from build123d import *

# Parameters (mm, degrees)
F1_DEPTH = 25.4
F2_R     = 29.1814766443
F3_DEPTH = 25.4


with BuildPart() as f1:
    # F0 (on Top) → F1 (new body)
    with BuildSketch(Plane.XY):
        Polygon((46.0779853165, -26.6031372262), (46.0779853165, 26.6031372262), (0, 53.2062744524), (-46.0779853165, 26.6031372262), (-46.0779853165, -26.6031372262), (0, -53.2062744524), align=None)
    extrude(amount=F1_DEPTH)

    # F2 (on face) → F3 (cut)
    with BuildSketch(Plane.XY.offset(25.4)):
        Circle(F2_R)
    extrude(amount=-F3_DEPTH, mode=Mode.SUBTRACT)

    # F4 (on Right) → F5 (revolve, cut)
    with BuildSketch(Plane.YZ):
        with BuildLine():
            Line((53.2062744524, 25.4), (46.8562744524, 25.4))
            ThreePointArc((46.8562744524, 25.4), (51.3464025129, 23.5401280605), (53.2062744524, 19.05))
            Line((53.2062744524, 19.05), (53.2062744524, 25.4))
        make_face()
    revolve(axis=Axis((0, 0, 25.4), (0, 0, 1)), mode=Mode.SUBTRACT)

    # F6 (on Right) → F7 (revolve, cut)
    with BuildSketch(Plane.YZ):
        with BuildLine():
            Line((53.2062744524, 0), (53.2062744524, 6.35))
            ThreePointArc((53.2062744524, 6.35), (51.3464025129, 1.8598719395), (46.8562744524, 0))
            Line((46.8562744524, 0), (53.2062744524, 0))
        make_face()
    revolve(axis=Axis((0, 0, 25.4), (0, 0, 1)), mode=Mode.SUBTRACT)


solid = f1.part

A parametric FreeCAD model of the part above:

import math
import FreeCAD as App
import Part
import Sketcher
Q = App.Units.Quantity


def add_polygon(sketch, points):
    """Adds a closed chain of lines whose ends are joined by coincident constraints."""
    first, n = sketch.GeometryCount, len(points)
    for a, b in zip(points, points[1:] + points[:1]):
        sketch.addGeometry(Part.LineSegment(App.Vector(*a, 0), App.Vector(*b, 0)), False)
    for i in range(n):
        sketch.addConstraint(Sketcher.Constraint("Coincident", first + i, 2, first + (i + 1) % n, 1))

doc = App.newDocument("Part")
body = doc.addObject("PartDesign::Body", "Body")

sketch1 = body.newObject("Sketcher::SketchObject", "Sketch")
sketch1.AttachmentSupport = (doc.getObject("XY_Plane"), [""])
sketch1.MapMode = "FlatFace"
add_polygon(sketch1, [(46.077985, -26.603137), (46.077985, 26.603137), (0, 53.206274), (-46.077985, 26.603137), (-46.077985, -26.603137), (0, -53.206274)])
sketch1.addConstraint([
    Sketcher.Constraint("Vertical", 0),
    Sketcher.Constraint("Vertical", 3),
    Sketcher.Constraint("Symmetric", 0, 2, 3, 2, -1, 1),
    Sketcher.Constraint("Symmetric", 1, 2, 4, 2, -1, 1),
    Sketcher.Constraint("PointOnObject", 1, 2, -2),
    Sketcher.Constraint("Parallel", 2, 5),
    Sketcher.Constraint("Horizontal", 0, 2, 2, 2),
    Sketcher.Constraint("Angle", 1, Q("150 deg")),
    Sketcher.Constraint("DistanceY", 0, 1, 0, 2, 53.206274),
    Sketcher.Constraint("DistanceX", 2, 2, 0, 2, 92.155971),
])
pad1 = body.newObject("PartDesign::Pad", "Pad")
pad1.Profile = sketch1
pad1.Length = Q("1 in")

sketch2 = body.newObject("Sketcher::SketchObject", "Sketch001")
sketch2.AttachmentSupport = (doc.getObject("XY_Plane"), [""])
sketch2.MapMode = "FlatFace"
sketch2.AttachmentOffset = App.Placement(App.Vector(0, 0, 1 * 25.4), App.Rotation())
sketch2.addGeometry(Part.Circle(App.Vector(0, 0, 0), App.Vector(0, 0, 1), 29.181477), False)
sketch2.addConstraint([
    Sketcher.Constraint("Coincident", 0, 3, -1, 1),
    Sketcher.Constraint("Diameter", 0, 58.362953),
])
pocket1 = body.newObject("PartDesign::Pocket", "Pocket")
pocket1.Profile = sketch2
pocket1.Length = Q("1 in")

sketch3 = body.newObject("Sketcher::SketchObject", "Sketch002")
sketch3.AttachmentSupport = (doc.getObject("YZ_Plane"), [""])
sketch3.MapMode = "FlatFace"
sketch3.addGeometry([
    Part.LineSegment(App.Vector(53.206274, 25.4, 0), App.Vector(46.856274, 25.4, 0)),
    Part.ArcOfCircle(Part.Circle(App.Vector(46.856274, 19.05, 0), App.Vector(0, 0, 1), 6.35), math.radians(0), math.radians(90)),
    Part.LineSegment(App.Vector(53.206274, 19.05, 0), App.Vector(53.206274, 25.4, 0)),
], False)
sketch3.addConstraint([
    Sketcher.Constraint("Tangent", 0, 2, 1, 2),
    Sketcher.Constraint("Tangent", 1, 1, 2, 1),
    Sketcher.Constraint("Coincident", 2, 2, 0, 1),
    Sketcher.Constraint("Horizontal", 0),
    Sketcher.Constraint("Vertical", 2),
    Sketcher.Constraint("Radius", 1, Q("0.25 in")),
    Sketcher.Constraint("DistanceY", -1, 1, 0, 2, Q("1 in")),
    Sketcher.Constraint("DistanceX", -1, 1, 1, 3, 46.856274),
])
groove = body.newObject("PartDesign::Groove", "Groove")
groove.Profile = sketch3
groove.ReferenceAxis = (sketch3, ["V_Axis"])
groove.Angle = 360

sketch4 = body.newObject("Sketcher::SketchObject", "Sketch003")
sketch4.AttachmentSupport = (doc.getObject("YZ_Plane"), [""])
sketch4.MapMode = "FlatFace"
sketch4.addGeometry([
    Part.LineSegment(App.Vector(53.206274, 0, 0), App.Vector(53.206274, 6.35, 0)),
    Part.ArcOfCircle(Part.Circle(App.Vector(46.856274, 6.35, 0), App.Vector(0, 0, 1), 6.35), math.radians(-90), math.radians(0)),
    Part.LineSegment(App.Vector(46.856274, 0, 0), App.Vector(53.206274, 0, 0)),
], False)
sketch4.addConstraint([
    Sketcher.Constraint("Tangent", 0, 2, 1, 2),
    Sketcher.Constraint("Tangent", 1, 1, 2, 1),
    Sketcher.Constraint("Coincident", 2, 2, 0, 1),
    Sketcher.Constraint("Vertical", 0),
    Sketcher.Constraint("Horizontal", 2),
    Sketcher.Constraint("PointOnObject", 1, 1, -1),
    Sketcher.Constraint("Radius", 1, Q("0.25 in")),
    Sketcher.Constraint("DistanceX", -1, 1, 1, 3, 46.856274),
])
groove2 = body.newObject("PartDesign::Groove", "Groove001")
groove2.Profile = sketch4
groove2.ReferenceAxis = (sketch4, ["V_Axis"])
groove2.Angle = 360

doc.recompute()
